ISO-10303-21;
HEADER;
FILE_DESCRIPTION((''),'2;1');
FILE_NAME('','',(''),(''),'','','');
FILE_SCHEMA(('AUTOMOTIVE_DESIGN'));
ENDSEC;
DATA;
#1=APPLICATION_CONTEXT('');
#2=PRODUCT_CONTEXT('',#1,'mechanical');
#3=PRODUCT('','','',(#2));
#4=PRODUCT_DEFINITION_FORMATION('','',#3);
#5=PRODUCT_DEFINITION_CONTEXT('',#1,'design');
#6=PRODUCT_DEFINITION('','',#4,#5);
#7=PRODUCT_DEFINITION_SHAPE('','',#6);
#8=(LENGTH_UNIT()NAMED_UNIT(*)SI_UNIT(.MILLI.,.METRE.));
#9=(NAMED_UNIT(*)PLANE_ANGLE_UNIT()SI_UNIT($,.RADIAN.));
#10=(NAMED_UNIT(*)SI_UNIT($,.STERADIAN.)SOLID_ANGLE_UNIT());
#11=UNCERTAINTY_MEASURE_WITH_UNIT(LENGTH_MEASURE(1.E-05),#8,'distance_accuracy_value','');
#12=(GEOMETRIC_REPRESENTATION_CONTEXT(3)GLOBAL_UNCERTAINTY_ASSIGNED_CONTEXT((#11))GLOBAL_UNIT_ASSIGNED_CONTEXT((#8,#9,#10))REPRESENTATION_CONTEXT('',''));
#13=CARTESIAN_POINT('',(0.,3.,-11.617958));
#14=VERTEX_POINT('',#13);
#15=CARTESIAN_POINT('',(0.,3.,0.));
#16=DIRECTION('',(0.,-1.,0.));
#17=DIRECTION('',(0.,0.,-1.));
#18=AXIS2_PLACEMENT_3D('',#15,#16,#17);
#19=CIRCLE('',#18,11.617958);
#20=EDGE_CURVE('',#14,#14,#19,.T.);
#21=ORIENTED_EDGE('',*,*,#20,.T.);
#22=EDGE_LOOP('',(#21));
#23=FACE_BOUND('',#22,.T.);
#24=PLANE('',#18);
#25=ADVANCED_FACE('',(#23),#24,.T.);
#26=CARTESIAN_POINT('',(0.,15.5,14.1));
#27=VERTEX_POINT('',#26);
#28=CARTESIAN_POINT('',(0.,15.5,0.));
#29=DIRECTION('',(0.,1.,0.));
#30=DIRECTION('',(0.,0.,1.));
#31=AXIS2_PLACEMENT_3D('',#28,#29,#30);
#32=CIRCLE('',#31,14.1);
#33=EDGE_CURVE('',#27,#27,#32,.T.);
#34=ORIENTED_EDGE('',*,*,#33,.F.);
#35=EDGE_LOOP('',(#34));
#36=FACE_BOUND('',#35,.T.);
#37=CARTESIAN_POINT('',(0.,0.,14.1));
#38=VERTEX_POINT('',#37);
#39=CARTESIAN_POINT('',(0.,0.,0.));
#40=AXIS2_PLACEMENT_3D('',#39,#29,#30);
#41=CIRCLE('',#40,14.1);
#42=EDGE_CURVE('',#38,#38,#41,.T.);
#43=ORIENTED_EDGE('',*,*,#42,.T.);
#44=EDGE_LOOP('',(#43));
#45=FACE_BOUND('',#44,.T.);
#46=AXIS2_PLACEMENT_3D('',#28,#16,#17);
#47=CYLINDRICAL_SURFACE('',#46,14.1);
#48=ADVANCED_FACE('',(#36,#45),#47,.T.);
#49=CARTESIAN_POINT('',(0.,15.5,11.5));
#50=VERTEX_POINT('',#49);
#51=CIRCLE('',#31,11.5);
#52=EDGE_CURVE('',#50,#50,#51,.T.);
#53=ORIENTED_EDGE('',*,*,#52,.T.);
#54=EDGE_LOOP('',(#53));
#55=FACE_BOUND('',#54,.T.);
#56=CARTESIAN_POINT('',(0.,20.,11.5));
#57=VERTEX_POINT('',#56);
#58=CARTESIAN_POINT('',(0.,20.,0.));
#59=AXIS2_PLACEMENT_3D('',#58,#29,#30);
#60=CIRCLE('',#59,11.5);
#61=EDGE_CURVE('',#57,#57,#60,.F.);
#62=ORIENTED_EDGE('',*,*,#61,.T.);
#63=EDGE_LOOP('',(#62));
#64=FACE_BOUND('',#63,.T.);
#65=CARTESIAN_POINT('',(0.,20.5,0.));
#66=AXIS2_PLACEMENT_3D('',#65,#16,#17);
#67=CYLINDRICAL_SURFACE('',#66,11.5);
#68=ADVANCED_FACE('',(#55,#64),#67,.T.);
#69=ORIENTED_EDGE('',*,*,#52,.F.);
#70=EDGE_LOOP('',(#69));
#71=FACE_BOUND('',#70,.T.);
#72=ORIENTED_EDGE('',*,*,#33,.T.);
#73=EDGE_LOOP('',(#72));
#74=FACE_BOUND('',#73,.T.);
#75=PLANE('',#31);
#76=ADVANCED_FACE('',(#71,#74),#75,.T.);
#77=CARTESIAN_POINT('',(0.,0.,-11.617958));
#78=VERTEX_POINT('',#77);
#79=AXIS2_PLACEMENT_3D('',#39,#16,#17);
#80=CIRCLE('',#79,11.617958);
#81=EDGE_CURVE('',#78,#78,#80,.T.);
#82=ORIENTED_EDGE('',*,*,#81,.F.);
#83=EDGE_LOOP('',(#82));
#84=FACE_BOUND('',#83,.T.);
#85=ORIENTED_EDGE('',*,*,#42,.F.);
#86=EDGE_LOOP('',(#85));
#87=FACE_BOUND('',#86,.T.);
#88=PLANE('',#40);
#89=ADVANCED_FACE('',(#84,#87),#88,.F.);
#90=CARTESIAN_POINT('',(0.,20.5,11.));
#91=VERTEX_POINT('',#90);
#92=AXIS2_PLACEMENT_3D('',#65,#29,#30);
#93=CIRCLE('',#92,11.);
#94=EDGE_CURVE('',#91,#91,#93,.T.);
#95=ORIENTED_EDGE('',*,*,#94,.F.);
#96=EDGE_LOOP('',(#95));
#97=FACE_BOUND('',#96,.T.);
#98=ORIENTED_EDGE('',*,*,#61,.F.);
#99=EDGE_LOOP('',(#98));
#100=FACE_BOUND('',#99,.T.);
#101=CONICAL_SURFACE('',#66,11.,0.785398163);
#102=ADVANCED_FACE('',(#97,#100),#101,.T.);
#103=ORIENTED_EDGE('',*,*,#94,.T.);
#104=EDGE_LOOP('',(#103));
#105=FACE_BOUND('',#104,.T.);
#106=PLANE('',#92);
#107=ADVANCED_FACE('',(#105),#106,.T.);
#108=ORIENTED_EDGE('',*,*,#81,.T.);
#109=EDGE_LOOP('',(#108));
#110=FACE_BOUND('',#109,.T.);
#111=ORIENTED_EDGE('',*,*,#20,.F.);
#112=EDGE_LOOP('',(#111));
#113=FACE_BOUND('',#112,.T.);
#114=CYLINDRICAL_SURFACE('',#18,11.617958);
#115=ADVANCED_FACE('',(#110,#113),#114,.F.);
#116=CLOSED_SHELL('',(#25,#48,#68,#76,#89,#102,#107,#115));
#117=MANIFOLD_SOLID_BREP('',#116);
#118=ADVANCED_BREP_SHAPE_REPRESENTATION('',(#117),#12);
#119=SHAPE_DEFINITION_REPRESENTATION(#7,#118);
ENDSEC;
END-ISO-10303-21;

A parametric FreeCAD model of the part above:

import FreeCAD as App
import Part
import Sketcher
Q = App.Units.Quantity


def edges_at(feature, points):
    """Names of the edges that pass closest to the given points."""
    edges = feature.Shape.Edges
    near = lambda p: min(range(len(edges)), key=lambda i: edges[i].distToShape(Part.Vertex(*p))[0])
    return sorted({f"Edge{near(p) + 1}" for p in points})

doc = App.newDocument("Part")
body = doc.addObject("PartDesign::Body", "Body")

sketch1 = body.newObject("Sketcher::SketchObject", "Sketch")
sketch1.AttachmentSupport = (doc.getObject("XZ_Plane"), [""])
sketch1.MapMode = "FlatFace"
sketch1.addGeometry(Part.Circle(App.Vector(0, 0, 0), App.Vector(0, 0, 1), 14), False)
sketch1.addConstraint([
    Sketcher.Constraint("Coincident", 0, 3, -1, 1),
    Sketcher.Constraint("Diameter", 0, Q("28.2 mm")),
])
pad1 = body.newObject("PartDesign::Pad", "Pad")
pad1.Profile = sketch1
pad1.Length = 15.5
pad1.Reversed = True

sketch2 = body.newObject("Sketcher::SketchObject", "Sketch001")
sketch2.AttachmentSupport = (doc.getObject("XZ_Plane"), [""])
sketch2.MapMode = "FlatFace"
sketch2.AttachmentOffset = App.Placement(App.Vector(0, 0, -15.5), App.Rotation())
sketch2.addGeometry(Part.Circle(App.Vector(0, 0, 0), App.Vector(0, 0, 1), 12), False)
sketch2.addConstraint([
    Sketcher.Constraint("Coincident", 0, 3, -1, 1),
    Sketcher.Constraint("Diameter", 0, Q("23 mm")),
])
pad2 = body.newObject("PartDesign::Pad", "Pad001")
pad2.Profile = sketch2
pad2.Length = 5
pad2.Reversed = True
doc.recompute()

chamfer = body.newObject("PartDesign::Chamfer", "Chamfer")
chamfer.Base = (pad2, edges_at(pad2, [(0, 20.5, -11.5)]))
chamfer.Size = 0.5

sketch3 = body.newObject("Sketcher::SketchObject", "Sketch002")
sketch3.AttachmentSupport = (doc.getObject("XZ_Plane"), [""])
sketch3.MapMode = "FlatFace"
sketch3.addGeometry(Part.Circle(App.Vector(0, 0, 0), App.Vector(0, 0, 1), 12), False)
sketch3.addConstraint([
    Sketcher.Constraint("Coincident", 0, 3, -1, 1),
    Sketcher.Constraint("Diameter", 0, Q("23.235917 mm")),
])
pocket1 = body.newObject("PartDesign::Pocket", "Pocket")
pocket1.Profile = sketch3
pocket1.Length = 3

doc.recompute()
